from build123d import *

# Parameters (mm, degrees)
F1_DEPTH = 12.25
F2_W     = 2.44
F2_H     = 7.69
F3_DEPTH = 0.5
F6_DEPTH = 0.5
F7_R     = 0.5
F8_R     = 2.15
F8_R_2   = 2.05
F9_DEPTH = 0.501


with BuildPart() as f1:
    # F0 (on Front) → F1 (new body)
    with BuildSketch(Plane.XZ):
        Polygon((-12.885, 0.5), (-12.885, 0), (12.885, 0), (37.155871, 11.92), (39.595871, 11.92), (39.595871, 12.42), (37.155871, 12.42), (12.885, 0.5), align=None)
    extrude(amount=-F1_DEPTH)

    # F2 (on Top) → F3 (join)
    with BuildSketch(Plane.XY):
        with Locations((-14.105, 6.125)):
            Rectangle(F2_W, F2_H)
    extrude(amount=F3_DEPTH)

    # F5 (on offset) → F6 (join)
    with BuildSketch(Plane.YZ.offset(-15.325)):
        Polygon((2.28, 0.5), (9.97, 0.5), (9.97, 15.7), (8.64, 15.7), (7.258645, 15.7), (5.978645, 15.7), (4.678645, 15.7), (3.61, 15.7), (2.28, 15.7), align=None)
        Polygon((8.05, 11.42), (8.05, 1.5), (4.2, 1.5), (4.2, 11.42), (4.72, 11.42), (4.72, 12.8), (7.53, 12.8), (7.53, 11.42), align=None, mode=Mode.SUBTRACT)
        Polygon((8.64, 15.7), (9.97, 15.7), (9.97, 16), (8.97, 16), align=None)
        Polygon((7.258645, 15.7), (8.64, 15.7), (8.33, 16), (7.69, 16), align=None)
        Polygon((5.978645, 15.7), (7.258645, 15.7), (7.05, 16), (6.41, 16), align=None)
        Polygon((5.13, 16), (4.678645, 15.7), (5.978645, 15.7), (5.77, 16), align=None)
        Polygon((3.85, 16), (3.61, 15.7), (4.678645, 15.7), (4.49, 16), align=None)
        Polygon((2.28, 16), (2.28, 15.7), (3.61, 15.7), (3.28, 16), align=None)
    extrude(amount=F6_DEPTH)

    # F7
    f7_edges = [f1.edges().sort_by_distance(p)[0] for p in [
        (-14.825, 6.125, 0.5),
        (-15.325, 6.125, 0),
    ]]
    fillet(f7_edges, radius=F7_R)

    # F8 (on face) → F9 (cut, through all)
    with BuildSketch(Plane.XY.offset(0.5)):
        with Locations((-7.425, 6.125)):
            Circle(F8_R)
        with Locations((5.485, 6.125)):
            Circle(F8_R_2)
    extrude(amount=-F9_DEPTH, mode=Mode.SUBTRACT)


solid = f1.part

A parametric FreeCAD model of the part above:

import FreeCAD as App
import Part
import Sketcher

V = App.Vector
Q = App.Units.Quantity


def edges_at(feature, points):
    """Names of the edges that pass closest to the given points."""
    edges = feature.Shape.Edges
    near = lambda p: min(range(len(edges)), key=lambda i: edges[i].distToShape(Part.Vertex(*p))[0])
    return sorted({f"Edge{near(p) + 1}" for p in points})

doc = App.newDocument("Part")
body = doc.addObject("PartDesign::Body", "Body")

# Sketch on XZ plane
sketch1 = body.newObject("Sketcher::SketchObject", "Sketch")
sketch1.AttachmentSupport = (doc.getObject("XZ_Plane"), [""])
sketch1.MapMode = "FlatFace"
sketch1.addGeometry(Part.LineSegment(V(-12.9, 0.5, 0), V(-12.9, 0, 0)), False)
sketch1.addGeometry(Part.LineSegment(V(-12.9, 0, 0), V(12.9, 0, 0)), False)
sketch1.addGeometry(Part.LineSegment(V(12.9, 0, 0), V(37.2, 11.9, 0)), False)
sketch1.addGeometry(Part.LineSegment(V(37.2, 11.9, 0), V(39.6, 11.9, 0)), False)
sketch1.addGeometry(Part.LineSegment(V(39.6, 11.9, 0), V(39.6, 12.4, 0)), False)
sketch1.addGeometry(Part.LineSegment(V(39.6, 12.4, 0), V(37.2, 12.4, 0)), False)
sketch1.addGeometry(Part.LineSegment(V(37.2, 12.4, 0), V(12.9, 0.5, 0)), False)
sketch1.addGeometry(Part.LineSegment(V(12.9, 0.5, 0), V(-12.9, 0.5, 0)), False)
sketch1.addConstraint(Sketcher.Constraint("Coincident", 0, 2, 1, 1))
sketch1.addConstraint(Sketcher.Constraint("Coincident", 1, 2, 2, 1))
sketch1.addConstraint(Sketcher.Constraint("Coincident", 2, 2, 3, 1))
sketch1.addConstraint(Sketcher.Constraint("Coincident", 3, 2, 4, 1))
sketch1.addConstraint(Sketcher.Constraint("Coincident", 4, 2, 5, 1))
sketch1.addConstraint(Sketcher.Constraint("Coincident", 5, 2, 6, 1))
sketch1.addConstraint(Sketcher.Constraint("Coincident", 6, 2, 7, 1))
sketch1.addConstraint(Sketcher.Constraint("Coincident", 7, 2, 0, 1))
sketch1.addConstraint(Sketcher.Constraint("Vertical", 0))
sketch1.addConstraint(Sketcher.Constraint("Horizontal", 1))
sketch1.addConstraint(Sketcher.Constraint("Horizontal", 3))
sketch1.addConstraint(Sketcher.Constraint("Vertical", 4))
sketch1.addConstraint(Sketcher.Constraint("Horizontal", 5))
sketch1.addConstraint(Sketcher.Constraint("Horizontal", 7))
sketch1.addConstraint(Sketcher.Constraint("Symmetric", 0, 2, 1, 2, -1, 1))
sketch1.addConstraint(Sketcher.Constraint("Parallel", 2, 6))
sketch1.addConstraint(Sketcher.Constraint("Vertical", 2, 2, 5, 2))
sketch1.addConstraint(Sketcher.Constraint("Vertical", 1, 2, 6, 2))
sketch1.addConstraint(Sketcher.Constraint("DistanceY", 0, 2, 0, 1, Q("0.5 mm")))
sketch1.addConstraint(Sketcher.Constraint("DistanceX", 1, 1, 1, 2, Q("25.77 mm")))
sketch1.addConstraint(Sketcher.Constraint("DistanceX", 3, 1, 3, 2, Q("2.44 mm")))
sketch1.addConstraint(Sketcher.Constraint("Distance", 2, Q("27.04 mm")))
sketch1.addConstraint(Sketcher.Constraint("DistanceY", -1, 1, 2, 2, Q("11.92 mm")))
pad1 = body.newObject("PartDesign::Pad", "Pad")
pad1.Profile = sketch1
pad1.Length = 12.25
pad1.Reversed = True

# Sketch on XY plane
sketch2 = body.newObject("Sketcher::SketchObject", "Sketch001")
sketch2.AttachmentSupport = (doc.getObject("XY_Plane"), [""])
sketch2.MapMode = "FlatFace"
sketch2.addGeometry(Part.LineSegment(V(-15.3, 10, 0), V(-15.3, 2.3, 0)), False)
sketch2.addGeometry(Part.LineSegment(V(-15.3, 2.3, 0), V(-12.9, 2.3, 0)), False)
sketch2.addGeometry(Part.LineSegment(V(-12.9, 2.3, 0), V(-12.9, 10, 0)), False)
sketch2.addGeometry(Part.LineSegment(V(-12.9, 10, 0), V(-15.3, 10, 0)), False)
sketch2.addConstraint(Sketcher.Constraint("Coincident", 0, 2, 1, 1))
sketch2.addConstraint(Sketcher.Constraint("Coincident", 1, 2, 2, 1))
sketch2.addConstraint(Sketcher.Constraint("Coincident", 2, 2, 3, 1))
sketch2.addConstraint(Sketcher.Constraint("Coincident", 3, 2, 0, 1))
sketch2.addConstraint(Sketcher.Constraint("Vertical", 0))
sketch2.addConstraint(Sketcher.Constraint("Horizontal", 1))
sketch2.addConstraint(Sketcher.Constraint("Vertical", 2))
sketch2.addConstraint(Sketcher.Constraint("Horizontal", 3))
sketch2.addConstraint(Sketcher.Constraint("DistanceX", 1, 1, 1, 2, Q("2.44 mm")))
sketch2.addConstraint(Sketcher.Constraint("DistanceY", 0, 2, 0, 1, Q("7.69 mm")))
sketch2.addConstraint(Sketcher.Constraint("DistanceY", -1, 1, 0, 2, Q("2.28 mm")))
sketch2.addConstraint(Sketcher.Constraint("DistanceX", 0, 2, -1, 1, Q("15.325 mm")))
pad2 = body.newObject("PartDesign::Pad", "Pad001")
pad2.Profile = sketch2
pad2.Length = 0.5

# Sketch on YZ plane
sketch3 = body.newObject("Sketcher::SketchObject", "Sketch002")
sketch3.AttachmentSupport = (doc.getObject("YZ_Plane"), [""])
sketch3.MapMode = "FlatFace"
sketch3.AttachmentOffset = App.Placement(V(0, 0, -15.325), App.Rotation())
sketch3.addGeometry(Part.LineSegment(V(2.28, 0.5, 0), V(9.97, 0.5, 0)), False)
sketch3.addGeometry(Part.LineSegment(V(9.97, 0.5, 0), V(9.97, 16, 0)), False)
sketch3.addGeometry(Part.LineSegment(V(9.97, 16, 0), V(8.97, 16, 0)), False)
sketch3.addGeometry(Part.LineSegment(V(8.97, 16, 0), V(8.64, 15.7, 0)), False)
sketch3.addGeometry(Part.LineSegment(V(8.64, 15.7, 0), V(8.33, 16, 0)), False)
sketch3.addGeometry(Part.LineSegment(V(8.33, 16, 0), V(7.69, 16, 0)), False)
sketch3.addGeometry(Part.LineSegment(V(7.69, 16, 0), V(7.26, 15.7, 0)), False)
sketch3.addGeometry(Part.LineSegment(V(7.26, 15.7, 0), V(7.05, 16, 0)), False)
sketch3.addGeometry(Part.LineSegment(V(7.05, 16, 0), V(6.41, 16, 0)), False)
sketch3.addGeometry(Part.LineSegment(V(6.41, 16, 0), V(5.98, 15.7, 0)), False)
sketch3.addGeometry(Part.LineSegment(V(5.98, 15.7, 0), V(5.77, 16, 0)), False)
sketch3.addGeometry(Part.LineSegment(V(5.77, 16, 0), V(5.13, 16, 0)), False)
sketch3.addGeometry(Part.LineSegment(V(5.13, 16, 0), V(4.68, 15.7, 0)), False)
sketch3.addGeometry(Part.LineSegment(V(4.68, 15.7, 0), V(4.49, 16, 0)), False)
sketch3.addGeometry(Part.LineSegment(V(4.49, 16, 0), V(3.85, 16, 0)), False)
sketch3.addGeometry(Part.LineSegment(V(3.85, 16, 0), V(3.61, 15.7, 0)), False)
sketch3.addGeometry(Part.LineSegment(V(3.61, 15.7, 0), V(3.28, 16, 0)), False)
sketch3.addGeometry(Part.LineSegment(V(3.28, 16, 0), V(2.28, 16, 0)), False)
sketch3.addGeometry(Part.LineSegment(V(2.28, 16, 0), V(2.28, 0.5, 0)), False)
sketch3.addGeometry(Part.LineSegment(V(7.53, 11.42, 0), V(8.05, 11.42, 0)), False)
sketch3.addGeometry(Part.LineSegment(V(8.05, 11.42, 0), V(8.05, 1.5, 0)), False)
sketch3.addGeometry(Part.LineSegment(V(8.05, 1.5, 0), V(4.2, 1.5, 0)), False)
sketch3.addGeometry(Part.LineSegment(V(4.2, 1.5, 0), V(4.2, 11.42, 0)), False)
sketch3.addGeometry(Part.LineSegment(V(4.2, 11.42, 0), V(4.72, 11.42, 0)), False)
sketch3.addGeometry(Part.LineSegment(V(4.72, 11.42, 0), V(4.72, 12.8, 0)), False)
sketch3.addGeometry(Part.LineSegment(V(4.72, 12.8, 0), V(7.53, 12.8, 0)), False)
sketch3.addGeometry(Part.LineSegment(V(7.53, 12.8, 0), V(7.53, 11.42, 0)), False)
sketch3.addConstraint(Sketcher.Constraint("Coincident", 0, 2, 1, 1))
sketch3.addConstraint(Sketcher.Constraint("Coincident", 1, 2, 2, 1))
sketch3.addConstraint(Sketcher.Constraint("Coincident", 2, 2, 3, 1))
sketch3.addConstraint(Sketcher.Constraint("Coincident", 3, 2, 4, 1))
sketch3.addConstraint(Sketcher.Constraint("Coincident", 4, 2, 5, 1))
sketch3.addConstraint(Sketcher.Constraint("Coincident", 5, 2, 6, 1))
sketch3.addConstraint(Sketcher.Constraint("Coincident", 6, 2, 7, 1))
sketch3.addConstraint(Sketcher.Constraint("Coincident", 7, 2, 8, 1))
sketch3.addConstraint(Sketcher.Constraint("Coincident", 8, 2, 9, 1))
sketch3.addConstraint(Sketcher.Constraint("Coincident", 9, 2, 10, 1))
sketch3.addConstraint(Sketcher.Constraint("Coincident", 10, 2, 11, 1))
sketch3.addConstraint(Sketcher.Constraint("Coincident", 11, 2, 12, 1))
sketch3.addConstraint(Sketcher.Constraint("Coincident", 12, 2, 13, 1))
sketch3.addConstraint(Sketcher.Constraint("Coincident", 13, 2, 14, 1))
sketch3.addConstraint(Sketcher.Constraint("Coincident", 14, 2, 15, 1))
sketch3.addConstraint(Sketcher.Constraint("Coincident", 15, 2, 16, 1))
sketch3.addConstraint(Sketcher.Constraint("Coincident", 16, 2, 17, 1))
sketch3.addConstraint(Sketcher.Constraint("Coincident", 17, 2, 18, 1))
sketch3.addConstraint(Sketcher.Constraint("Coincident", 18, 2, 0, 1))
sketch3.addConstraint(Sketcher.Constraint("Coincident", 19, 2, 20, 1))
sketch3.addConstraint(Sketcher.Constraint("Coincident", 20, 2, 21, 1))
sketch3.addConstraint(Sketcher.Constraint("Coincident", 21, 2, 22, 1))
sketch3.addConstraint(Sketcher.Constraint("Coincident", 22, 2, 23, 1))
sketch3.addConstraint(Sketcher.Constraint("Coincident", 23, 2, 24, 1))
sketch3.addConstraint(Sketcher.Constraint("Coincident", 24, 2, 25, 1))
sketch3.addConstraint(Sketcher.Constraint("Coincident", 25, 2, 26, 1))
sketch3.addConstraint(Sketcher.Constraint("Coincident", 26, 2, 19, 1))
sketch3.addConstraint(Sketcher.Constraint("Horizontal", 0))
sketch3.addConstraint(Sketcher.Constraint("Vertical", 1))
sketch3.addConstraint(Sketcher.Constraint("Horizontal", 2))
sketch3.addConstraint(Sketcher.Constraint("Horizontal", 5))
sketch3.addConstraint(Sketcher.Constraint("Horizontal", 8))
sketch3.addConstraint(Sketcher.Constraint("Horizontal", 11))
sketch3.addConstraint(Sketcher.Constraint("Horizontal", 14))
sketch3.addConstraint(Sketcher.Constraint("Horizontal", 17))
sketch3.addConstraint(Sketcher.Constraint("Vertical", 18))
sketch3.addConstraint(Sketcher.Constraint("Horizontal", 19))
sketch3.addConstraint(Sketcher.Constraint("Vertical", 20))
sketch3.addConstraint(Sketcher.Constraint("Horizontal", 21))
sketch3.addConstraint(Sketcher.Constraint("Vertical", 22))
sketch3.addConstraint(Sketcher.Constraint("Horizontal", 23))
sketch3.addConstraint(Sketcher.Constraint("Vertical", 24))
sketch3.addConstraint(Sketcher.Constraint("Horizontal", 25))
sketch3.addConstraint(Sketcher.Constraint("Vertical", 26))
sketch3.addConstraint(Sketcher.Constraint("Perpendicular", 6, 7))
sketch3.addConstraint(Sketcher.Constraint("Perpendicular", 7, 9))
sketch3.addConstraint(Sketcher.Constraint("Perpendicular", 9, 10))
sketch3.addConstraint(Sketcher.Constraint("Horizontal", 2, 2, 4, 2))
sketch3.addConstraint(Sketcher.Constraint("Horizontal", 3, 2, 6, 2))
sketch3.addConstraint(Sketcher.Constraint("Horizontal", 5, 2, 7, 2))
sketch3.addConstraint(Sketcher.Constraint("Horizontal", 6, 2, 9, 2))
sketch3.addConstraint(Sketcher.Constraint("Horizontal", 8, 2, 10, 2))
sketch3.addConstraint(Sketcher.Constraint("Horizontal", 9, 2, 12, 2))
sketch3.addConstraint(Sketcher.Constraint("Horizontal", 11, 2, 13, 2))
sketch3.addConstraint(Sketcher.Constraint("Horizontal", 12, 2, 15, 2))
sketch3.addConstraint(Sketcher.Constraint("Horizontal", 14, 2, 16, 2))
sketch3.addConstraint(Sketcher.Constraint("Horizontal", 19, 2, 22, 2))
sketch3.addConstraint(Sketcher.Constraint("Equal", 5, 8))
sketch3.addConstraint(Sketcher.Constraint("Equal", 8, 11))
sketch3.addConstraint(Sketcher.Constraint("Equal", 11, 14))
sketch3.addConstraint(Sketcher.Constraint("Equal", 2, 17))
sketch3.addConstraint(Sketcher.Constraint("Equal", 19, 23))
sketch3.addConstraint(Sketcher.Constraint("Equal", 3, 16))
sketch3.addConstraint(Sketcher.Constraint("DistanceX", 2, 2, 2, 1, Q("1 mm")))
sketch3.addConstraint(Sketcher.Constraint("DistanceY", 1, 1, 1, 2, Q("15.5 mm")))
sketch3.addConstraint(Sketcher.Constraint("DistanceY", -1, 1, 1, 2, Q("16 mm")))
sketch3.addConstraint(Sketcher.Constraint("DistanceY", 0, 2, 20, 2, Q("1 mm")))
sketch3.addConstraint(Sketcher.Constraint("DistanceX", 0, 1, 0, 2, Q("7.69 mm")))
sketch3.addConstraint(Sketcher.Constraint("DistanceX", 5, 2, 5, 1, Q("0.64 mm")))
sketch3.addConstraint(Sketcher.Constraint("DistanceX", 19, 1, 19, 2, Q("0.52 mm")))
sketch3.addConstraint(Sketcher.Constraint("DistanceX", 21, 2, 21, 1, Q("3.85 mm")))
sketch3.addConstraint(Sketcher.Constraint("DistanceY", 20, 2, 20, 1, Q("9.92 mm")))
sketch3.addConstraint(Sketcher.Constraint("DistanceY", 24, 1, 24, 2, Q("1.38 mm")))
sketch3.addConstraint(Sketcher.Constraint("DistanceY", -1, 1, 3, 2, Q("15.7 mm")))
sketch3.addConstraint(Sketcher.Constraint("DistanceX", -1, 1, 21, 2, Q("4.2 mm")))
sketch3.addConstraint(Sketcher.Constraint("DistanceX", 12, 2, 9, 2, Q("1.3 mm")))
sketch3.addConstraint(Sketcher.Constraint("DistanceX", -1, 1, 0, 2, Q("9.97 mm")))
sketch3.addConstraint(Sketcher.Constraint("DistanceX", -1, 1, 3, 2, Q("8.64 mm")))
sketch3.addConstraint(Sketcher.Constraint("DistanceX", -1, 1, 4, 2, Q("8.33 mm")))
sketch3.addConstraint(Sketcher.Constraint("DistanceX", -1, 1, 7, 2, Q("7.05 mm")))
sketch3.addConstraint(Sketcher.Constraint("DistanceX", -1, 1, 13, 2, Q("4.49 mm")))
pad3 = body.newObject("PartDesign::Pad", "Pad002")
pad3.Profile = sketch3
pad3.Length = 0.5
doc.recompute()

fillet = body.newObject("PartDesign::Fillet", "Fillet")
fillet.Base = (pad3, edges_at(pad3, [(-14.825, 6.125, 0.5), (-15.325, 6.125, 0)]))
fillet.Radius = 0.5

# Sketch on XY plane
sketch4 = body.newObject("Sketcher::SketchObject", "Sketch003")
sketch4.AttachmentSupport = (doc.getObject("XY_Plane"), [""])
sketch4.MapMode = "FlatFace"
sketch4.AttachmentOffset = App.Placement(V(0, 0, 0.5), App.Rotation())
sketch4.addGeometry(Part.Circle(V(-7.4, 6.1, 0), V(0, 0, 1), 2.1), False)
sketch4.addGeometry(Part.Circle(V(5.5, 6.1, 0), V(0, 0, 1), 2), False)
sketch4.addConstraint(Sketcher.Constraint("Horizontal", 0, 3, 1, 3))
sketch4.addConstraint(Sketcher.Constraint("Diameter", 0, Q("4.3 mm")))
sketch4.addConstraint(Sketcher.Constraint("Diameter", 1, Q("4.1 mm")))
sketch4.addConstraint(Sketcher.Constraint("DistanceX", 0, 3, 1, 3, Q("12.91 mm")))
sketch4.addConstraint(Sketcher.Constraint("DistanceX", 0, 3, -1, 1, Q("7.425 mm")))
sketch4.addConstraint(Sketcher.Constraint("DistanceY", -1, 1, 0, 3, Q("6.125 mm")))
pocket1 = body.newObject("PartDesign::Pocket", "Pocket")
pocket1.Profile = sketch4
pocket1.Type = "ThroughAll"

doc.recompute()
